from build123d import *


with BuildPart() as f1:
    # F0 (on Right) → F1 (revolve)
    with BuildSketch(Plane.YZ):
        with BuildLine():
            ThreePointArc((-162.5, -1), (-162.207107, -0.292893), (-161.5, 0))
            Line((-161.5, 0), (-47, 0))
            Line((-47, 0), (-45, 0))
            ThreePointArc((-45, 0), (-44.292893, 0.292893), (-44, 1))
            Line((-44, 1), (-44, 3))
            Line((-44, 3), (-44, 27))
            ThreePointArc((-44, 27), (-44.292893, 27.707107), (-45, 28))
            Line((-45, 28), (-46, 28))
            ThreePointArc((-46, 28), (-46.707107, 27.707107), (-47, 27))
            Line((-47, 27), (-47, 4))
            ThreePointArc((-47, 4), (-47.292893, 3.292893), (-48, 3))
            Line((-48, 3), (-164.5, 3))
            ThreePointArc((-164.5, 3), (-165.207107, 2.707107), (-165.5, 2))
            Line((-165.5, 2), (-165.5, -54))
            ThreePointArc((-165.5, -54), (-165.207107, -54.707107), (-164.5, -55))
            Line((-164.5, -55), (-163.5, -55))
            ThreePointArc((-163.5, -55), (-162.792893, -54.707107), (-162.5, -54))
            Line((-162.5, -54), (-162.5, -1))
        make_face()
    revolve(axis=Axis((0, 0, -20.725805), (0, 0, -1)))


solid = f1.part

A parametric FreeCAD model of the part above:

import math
import FreeCAD as App
import Part
import Sketcher

V = App.Vector
Q = App.Units.Quantity

doc = App.newDocument("Part")
body = doc.addObject("PartDesign::Body", "Body")

# Sketch on YZ plane
sketch1 = body.newObject("Sketcher::SketchObject", "Sketch")
sketch1.AttachmentSupport = (doc.getObject("YZ_Plane"), [""])
sketch1.MapMode = "FlatFace"
sketch1.addGeometry([
    Part.ArcOfCircle(Part.Circle(V(-161.5, -1, 0), V(0, 0, 1), 1), math.radians(90), math.radians(180)),  # 0
    Part.LineSegment(V(-161.5, 0, 0), V(-45, 0, 0)),  # 1
    Part.ArcOfCircle(Part.Circle(V(-45, 1, 0), V(0, 0, 1), 1), math.radians(-90), math.radians(0)),  # 2
    Part.LineSegment(V(-44, 1, 0), V(-44, 27, 0)),  # 3
    Part.ArcOfCircle(Part.Circle(V(-45, 27, 0), V(0, 0, 1), 1), math.radians(0), math.radians(90)),  # 4
    Part.LineSegment(V(-45, 28, 0), V(-46, 28, 0)),  # 5
    Part.ArcOfCircle(Part.Circle(V(-46, 27, 0), V(0, 0, 1), 1), math.radians(90), math.radians(180)),  # 6
    Part.LineSegment(V(-47, 27, 0), V(-47, 4, 0)),  # 7
    Part.ArcOfCircle(Part.Circle(V(-48, 4, 0), V(0, 0, 1), 1), math.radians(-90), math.radians(0)),  # 8
    Part.LineSegment(V(-48, 3, 0), V(-164.5, 3, 0)),  # 9
    Part.ArcOfCircle(Part.Circle(V(-164.5, 2, 0), V(0, 0, 1), 1), math.radians(90), math.radians(180)),  # 10
    Part.LineSegment(V(-165.5, 2, 0), V(-165.5, -54, 0)),  # 11
    Part.ArcOfCircle(Part.Circle(V(-164.5, -54, 0), V(0, 0, 1), 1), math.radians(180), math.radians(270)),  # 12
    Part.LineSegment(V(-164.5, -55, 0), V(-163.5, -55, 0)),  # 13
    Part.ArcOfCircle(Part.Circle(V(-163.5, -54, 0), V(0, 0, 1), 1), math.radians(-90), math.radians(0)),  # 14
    Part.LineSegment(V(-162.5, -54, 0), V(-162.5, -1, 0)),  # 15
], False)
sketch1.addConstraint([
    Sketcher.Constraint("Tangent", 0, 1, 1, 1),
    Sketcher.Constraint("Tangent", 1, 2, 2, 1),
    Sketcher.Constraint("Tangent", 2, 2, 3, 1),
    Sketcher.Constraint("Tangent", 3, 2, 4, 1),
    Sketcher.Constraint("Tangent", 4, 2, 5, 1),
    Sketcher.Constraint("Tangent", 5, 2, 6, 1),
    Sketcher.Constraint("Tangent", 6, 2, 7, 1),
    Sketcher.Constraint("Tangent", 7, 2, 8, 2),
    Sketcher.Constraint("Tangent", 8, 1, 9, 1),
    Sketcher.Constraint("Tangent", 9, 2, 10, 1),
    Sketcher.Constraint("Tangent", 10, 2, 11, 1),
    Sketcher.Constraint("Tangent", 11, 2, 12, 1),
    Sketcher.Constraint("Tangent", 12, 2, 13, 1),
    Sketcher.Constraint("Tangent", 13, 2, 14, 1),
    Sketcher.Constraint("Tangent", 14, 2, 15, 1),
    Sketcher.Constraint("Tangent", 15, 2, 0, 2),
    Sketcher.Constraint("Horizontal", 1),
    Sketcher.Constraint("Vertical", 3),
    Sketcher.Constraint("Horizontal", 5),
    Sketcher.Constraint("Vertical", 7),
    Sketcher.Constraint("Horizontal", 9),
    Sketcher.Constraint("Vertical", 11),
    Sketcher.Constraint("Horizontal", 13),
    Sketcher.Constraint("Vertical", 15),
    Sketcher.Constraint("Equal", 0, 2),
    Sketcher.Constraint("Equal", 2, 4),
    Sketcher.Constraint("Equal", 4, 6),
    Sketcher.Constraint("Equal", 6, 8),
    Sketcher.Constraint("Equal", 8, 10),
    Sketcher.Constraint("Equal", 10, 12),
    Sketcher.Constraint("Equal", 12, 14),
    Sketcher.Constraint("PointOnObject", 0, 1, -1),
    Sketcher.Constraint("Equal", 1, 9),
    Sketcher.Constraint("Radius", 0, Q("0.999999 mm")),
    Sketcher.Constraint("DistanceX", 5, 2, 5, 1, Q("1 mm")),
    Sketcher.Constraint("DistanceY", 3, 1, 3, 2, Q("26 mm")),
    Sketcher.Constraint("DistanceY", 7, 2, 7, 1, Q("23 mm")),
    Sketcher.Constraint("DistanceY", 11, 2, 11, 1, Q("56 mm")),
    Sketcher.Constraint("DistanceX", 1, 1, 1, 2, Q("116.5 mm")),
    Sketcher.Constraint("DistanceX", 2, 3, -1, 1, Q("44.999999 mm")),
])
revolution = body.newObject("PartDesign::Revolution", "Revolution")
revolution.Profile = sketch1
revolution.ReferenceAxis = (sketch1, ["V_Axis"])
revolution.Angle = 360

doc.recompute()
